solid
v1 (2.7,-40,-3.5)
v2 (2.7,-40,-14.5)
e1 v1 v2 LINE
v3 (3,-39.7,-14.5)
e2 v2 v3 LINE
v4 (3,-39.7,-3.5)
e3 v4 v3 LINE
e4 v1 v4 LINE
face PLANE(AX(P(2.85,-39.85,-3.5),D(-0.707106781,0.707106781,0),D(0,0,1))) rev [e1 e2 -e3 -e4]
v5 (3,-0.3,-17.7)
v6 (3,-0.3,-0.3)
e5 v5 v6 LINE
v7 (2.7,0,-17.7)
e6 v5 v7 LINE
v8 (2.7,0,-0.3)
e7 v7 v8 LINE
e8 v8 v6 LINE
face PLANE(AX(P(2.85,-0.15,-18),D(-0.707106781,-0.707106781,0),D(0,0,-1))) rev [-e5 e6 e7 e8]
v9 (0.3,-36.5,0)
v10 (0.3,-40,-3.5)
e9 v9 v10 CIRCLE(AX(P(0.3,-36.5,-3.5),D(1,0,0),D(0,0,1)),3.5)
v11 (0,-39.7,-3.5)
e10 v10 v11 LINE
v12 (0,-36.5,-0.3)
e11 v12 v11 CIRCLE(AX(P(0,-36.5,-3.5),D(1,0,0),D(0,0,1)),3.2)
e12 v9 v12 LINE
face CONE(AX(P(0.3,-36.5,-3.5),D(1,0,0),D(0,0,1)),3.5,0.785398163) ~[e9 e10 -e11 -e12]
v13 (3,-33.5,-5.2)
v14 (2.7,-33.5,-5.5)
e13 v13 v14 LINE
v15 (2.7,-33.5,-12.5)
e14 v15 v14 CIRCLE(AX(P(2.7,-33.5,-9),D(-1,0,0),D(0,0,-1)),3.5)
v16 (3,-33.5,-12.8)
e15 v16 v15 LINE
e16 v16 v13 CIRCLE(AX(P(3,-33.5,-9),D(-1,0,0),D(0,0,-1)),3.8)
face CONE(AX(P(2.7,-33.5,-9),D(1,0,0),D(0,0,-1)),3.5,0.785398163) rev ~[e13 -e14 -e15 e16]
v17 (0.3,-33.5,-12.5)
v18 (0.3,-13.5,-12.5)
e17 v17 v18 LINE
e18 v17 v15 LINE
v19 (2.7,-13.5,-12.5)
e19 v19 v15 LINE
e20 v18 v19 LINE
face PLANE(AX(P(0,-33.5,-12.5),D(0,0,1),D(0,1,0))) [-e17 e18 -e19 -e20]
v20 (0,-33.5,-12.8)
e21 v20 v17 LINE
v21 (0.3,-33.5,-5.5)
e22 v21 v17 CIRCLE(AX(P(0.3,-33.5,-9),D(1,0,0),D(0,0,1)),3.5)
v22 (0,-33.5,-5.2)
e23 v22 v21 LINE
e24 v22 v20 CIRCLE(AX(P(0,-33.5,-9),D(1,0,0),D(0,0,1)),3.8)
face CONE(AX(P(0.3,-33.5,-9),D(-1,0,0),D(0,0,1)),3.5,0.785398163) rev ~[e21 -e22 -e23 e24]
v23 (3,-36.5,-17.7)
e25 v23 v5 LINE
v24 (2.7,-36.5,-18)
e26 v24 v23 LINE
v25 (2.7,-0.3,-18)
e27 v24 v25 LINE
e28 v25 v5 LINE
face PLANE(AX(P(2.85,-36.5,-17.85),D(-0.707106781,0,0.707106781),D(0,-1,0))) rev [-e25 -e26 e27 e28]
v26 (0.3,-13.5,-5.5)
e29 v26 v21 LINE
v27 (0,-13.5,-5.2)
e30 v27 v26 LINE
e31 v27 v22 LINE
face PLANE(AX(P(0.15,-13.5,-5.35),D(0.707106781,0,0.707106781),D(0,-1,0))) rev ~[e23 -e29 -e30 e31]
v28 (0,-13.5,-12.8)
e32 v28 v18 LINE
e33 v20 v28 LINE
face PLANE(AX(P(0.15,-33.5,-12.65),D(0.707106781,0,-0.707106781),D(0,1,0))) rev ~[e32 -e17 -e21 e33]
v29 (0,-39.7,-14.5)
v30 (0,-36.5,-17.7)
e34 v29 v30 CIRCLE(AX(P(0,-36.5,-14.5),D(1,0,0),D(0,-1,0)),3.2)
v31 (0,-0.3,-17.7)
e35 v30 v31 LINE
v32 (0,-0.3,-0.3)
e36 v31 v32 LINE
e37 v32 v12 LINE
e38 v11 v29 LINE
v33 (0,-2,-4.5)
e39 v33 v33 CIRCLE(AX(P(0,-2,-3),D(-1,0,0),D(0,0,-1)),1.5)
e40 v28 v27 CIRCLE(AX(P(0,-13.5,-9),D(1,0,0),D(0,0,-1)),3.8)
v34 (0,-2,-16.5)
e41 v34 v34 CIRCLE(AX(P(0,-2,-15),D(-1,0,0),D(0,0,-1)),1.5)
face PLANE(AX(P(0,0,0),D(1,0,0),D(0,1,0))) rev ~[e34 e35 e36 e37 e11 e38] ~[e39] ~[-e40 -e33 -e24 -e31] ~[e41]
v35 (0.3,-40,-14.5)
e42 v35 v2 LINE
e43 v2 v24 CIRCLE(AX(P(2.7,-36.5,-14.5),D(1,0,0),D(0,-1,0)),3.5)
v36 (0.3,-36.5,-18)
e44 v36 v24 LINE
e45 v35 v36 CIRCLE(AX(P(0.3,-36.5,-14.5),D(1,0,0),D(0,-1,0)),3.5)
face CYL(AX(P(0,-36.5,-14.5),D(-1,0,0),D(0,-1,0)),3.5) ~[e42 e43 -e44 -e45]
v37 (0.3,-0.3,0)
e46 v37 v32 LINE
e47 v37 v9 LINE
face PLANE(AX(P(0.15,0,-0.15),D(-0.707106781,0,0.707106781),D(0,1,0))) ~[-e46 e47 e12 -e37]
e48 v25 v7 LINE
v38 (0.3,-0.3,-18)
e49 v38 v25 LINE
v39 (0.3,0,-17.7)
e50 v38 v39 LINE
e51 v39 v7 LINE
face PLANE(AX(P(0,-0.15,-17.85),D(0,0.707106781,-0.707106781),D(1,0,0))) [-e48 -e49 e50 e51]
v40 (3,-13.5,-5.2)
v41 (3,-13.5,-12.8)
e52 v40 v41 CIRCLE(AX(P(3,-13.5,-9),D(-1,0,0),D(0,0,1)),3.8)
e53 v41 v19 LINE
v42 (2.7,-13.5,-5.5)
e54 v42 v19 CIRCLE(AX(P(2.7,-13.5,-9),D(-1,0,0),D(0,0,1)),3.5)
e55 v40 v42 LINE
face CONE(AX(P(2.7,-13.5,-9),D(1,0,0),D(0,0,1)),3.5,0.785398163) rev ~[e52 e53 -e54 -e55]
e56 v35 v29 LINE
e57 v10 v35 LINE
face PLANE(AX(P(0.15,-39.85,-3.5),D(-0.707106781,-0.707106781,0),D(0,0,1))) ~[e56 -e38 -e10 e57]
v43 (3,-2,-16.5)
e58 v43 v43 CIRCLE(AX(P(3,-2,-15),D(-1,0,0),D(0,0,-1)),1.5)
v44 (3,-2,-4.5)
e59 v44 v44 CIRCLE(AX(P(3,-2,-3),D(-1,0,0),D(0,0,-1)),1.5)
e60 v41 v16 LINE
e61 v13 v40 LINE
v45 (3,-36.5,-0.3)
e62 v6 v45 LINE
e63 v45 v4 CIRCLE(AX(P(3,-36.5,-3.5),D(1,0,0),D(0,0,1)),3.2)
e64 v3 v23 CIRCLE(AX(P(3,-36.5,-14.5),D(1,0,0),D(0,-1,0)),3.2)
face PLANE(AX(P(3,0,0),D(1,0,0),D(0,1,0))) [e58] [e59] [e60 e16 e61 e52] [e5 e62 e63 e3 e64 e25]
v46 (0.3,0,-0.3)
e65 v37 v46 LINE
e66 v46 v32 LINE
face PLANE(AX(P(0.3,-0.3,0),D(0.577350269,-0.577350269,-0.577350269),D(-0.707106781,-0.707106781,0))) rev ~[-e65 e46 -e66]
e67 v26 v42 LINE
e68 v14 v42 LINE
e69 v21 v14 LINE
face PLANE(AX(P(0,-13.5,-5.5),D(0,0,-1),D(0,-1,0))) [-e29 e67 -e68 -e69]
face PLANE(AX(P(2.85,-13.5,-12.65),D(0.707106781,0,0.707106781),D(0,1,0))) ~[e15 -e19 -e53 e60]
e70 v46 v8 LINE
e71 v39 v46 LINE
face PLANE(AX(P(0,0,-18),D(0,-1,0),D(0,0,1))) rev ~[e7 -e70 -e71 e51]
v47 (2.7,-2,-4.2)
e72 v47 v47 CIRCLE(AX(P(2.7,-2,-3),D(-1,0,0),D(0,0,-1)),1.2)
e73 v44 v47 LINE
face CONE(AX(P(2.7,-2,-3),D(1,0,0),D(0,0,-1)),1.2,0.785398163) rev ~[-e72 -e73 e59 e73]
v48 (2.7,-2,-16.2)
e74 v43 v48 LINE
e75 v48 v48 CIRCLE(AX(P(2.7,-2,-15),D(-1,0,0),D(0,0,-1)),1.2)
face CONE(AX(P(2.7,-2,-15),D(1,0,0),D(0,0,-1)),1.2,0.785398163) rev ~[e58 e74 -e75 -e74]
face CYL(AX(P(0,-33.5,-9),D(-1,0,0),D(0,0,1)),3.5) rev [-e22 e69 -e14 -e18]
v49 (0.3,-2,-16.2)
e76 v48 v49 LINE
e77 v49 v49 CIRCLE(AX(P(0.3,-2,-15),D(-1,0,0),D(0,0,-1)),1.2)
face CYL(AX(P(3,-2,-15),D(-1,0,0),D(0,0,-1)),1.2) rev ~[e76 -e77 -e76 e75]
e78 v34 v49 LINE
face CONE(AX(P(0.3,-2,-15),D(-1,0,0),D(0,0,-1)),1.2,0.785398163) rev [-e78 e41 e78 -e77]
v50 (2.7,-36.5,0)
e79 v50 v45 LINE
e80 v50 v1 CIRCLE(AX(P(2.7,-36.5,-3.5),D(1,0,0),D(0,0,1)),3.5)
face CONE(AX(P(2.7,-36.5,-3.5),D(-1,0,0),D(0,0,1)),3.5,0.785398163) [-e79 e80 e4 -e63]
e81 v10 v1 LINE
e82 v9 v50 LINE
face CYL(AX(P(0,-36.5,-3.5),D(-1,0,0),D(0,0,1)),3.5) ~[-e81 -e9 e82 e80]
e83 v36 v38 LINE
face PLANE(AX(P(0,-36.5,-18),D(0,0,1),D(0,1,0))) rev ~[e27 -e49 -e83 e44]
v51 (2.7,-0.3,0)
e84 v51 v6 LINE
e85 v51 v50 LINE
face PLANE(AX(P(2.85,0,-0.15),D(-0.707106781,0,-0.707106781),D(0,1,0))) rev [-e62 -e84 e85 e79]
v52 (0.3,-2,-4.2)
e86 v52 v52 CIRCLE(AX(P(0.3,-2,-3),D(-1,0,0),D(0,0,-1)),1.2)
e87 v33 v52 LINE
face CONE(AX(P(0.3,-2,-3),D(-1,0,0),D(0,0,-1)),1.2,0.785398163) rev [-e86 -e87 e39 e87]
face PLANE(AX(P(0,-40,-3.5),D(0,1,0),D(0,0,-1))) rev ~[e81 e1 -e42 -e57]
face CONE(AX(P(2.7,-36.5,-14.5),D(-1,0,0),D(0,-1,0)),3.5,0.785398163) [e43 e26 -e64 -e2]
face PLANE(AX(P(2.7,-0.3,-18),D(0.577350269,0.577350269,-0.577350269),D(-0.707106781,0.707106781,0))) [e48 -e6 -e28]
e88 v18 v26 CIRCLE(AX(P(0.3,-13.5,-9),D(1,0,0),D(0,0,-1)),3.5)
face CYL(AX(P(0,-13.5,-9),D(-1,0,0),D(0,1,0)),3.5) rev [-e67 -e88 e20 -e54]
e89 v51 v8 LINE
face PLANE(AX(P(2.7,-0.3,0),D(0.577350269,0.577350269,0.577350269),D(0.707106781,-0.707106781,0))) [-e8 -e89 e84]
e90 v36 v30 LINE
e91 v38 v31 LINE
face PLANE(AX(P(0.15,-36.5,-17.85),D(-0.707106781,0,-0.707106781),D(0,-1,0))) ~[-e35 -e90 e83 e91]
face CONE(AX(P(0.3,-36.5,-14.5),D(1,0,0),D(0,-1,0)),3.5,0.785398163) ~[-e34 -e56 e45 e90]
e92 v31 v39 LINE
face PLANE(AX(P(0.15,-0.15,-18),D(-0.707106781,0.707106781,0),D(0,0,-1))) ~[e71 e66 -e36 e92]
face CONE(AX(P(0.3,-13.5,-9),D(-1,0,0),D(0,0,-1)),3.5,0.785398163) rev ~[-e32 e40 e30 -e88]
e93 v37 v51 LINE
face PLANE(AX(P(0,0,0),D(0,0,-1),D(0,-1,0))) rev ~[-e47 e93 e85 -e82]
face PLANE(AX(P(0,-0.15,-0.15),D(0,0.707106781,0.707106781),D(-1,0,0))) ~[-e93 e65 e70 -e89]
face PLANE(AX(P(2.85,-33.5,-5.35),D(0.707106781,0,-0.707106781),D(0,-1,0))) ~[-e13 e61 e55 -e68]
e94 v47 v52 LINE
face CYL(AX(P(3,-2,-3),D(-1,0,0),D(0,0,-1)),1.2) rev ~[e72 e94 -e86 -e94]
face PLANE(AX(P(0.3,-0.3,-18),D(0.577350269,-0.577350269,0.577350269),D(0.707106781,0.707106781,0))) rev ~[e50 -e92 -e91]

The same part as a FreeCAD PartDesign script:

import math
import FreeCAD as App
import Part
import Sketcher
Q = App.Units.Quantity

doc = App.newDocument("Part")
params = doc.addObject("Spreadsheet::Sheet", "Params")
for row, (alias, value) in enumerate([
    ("sketch1_radius", "3.5 mm"),
    ("sketch1_height", "18 mm"),
    ("sketch1_width", "20 mm"),
    ("pad1_length", "3 mm"),
    ("sketch2_diameter", "2.4 mm"),
    ("hole_diameter", "2.4 mm"),
    ("hole_depth", "8.8 mm"),
    ("chamfer_size", "0.3 mm"),
], start=1):
    params.set(f"A{row}", alias)
    params.set(f"B{row}", "=" + value)
    params.setAlias(f"B{row}", alias)

body = doc.addObject("PartDesign::Body", "Body")

# Sketch on YZ plane
sketch1 = body.newObject("Sketcher::SketchObject", "Sketch")
sketch1.AttachmentSupport = (doc.getObject("YZ_Plane"), [""])
sketch1.MapMode = "FlatFace"
sketch1.addGeometry(Part.LineSegment(App.Vector(0, -18, 0), App.Vector(0, 0, 0)), False)
sketch1.addGeometry(Part.LineSegment(App.Vector(0, 0, 0), App.Vector(-36.5, 0, 0)), False)
sketch1.addGeometry(Part.ArcOfCircle(Part.Circle(App.Vector(-36.5, -3.5, 0), App.Vector(0, 0, 1), 3.5), math.radians(90), math.radians(180)), False)
sketch1.addGeometry(Part.LineSegment(App.Vector(-40, -3.5, 0), App.Vector(-40, -14.5, 0)), False)
sketch1.addGeometry(Part.ArcOfCircle(Part.Circle(App.Vector(-36.5, -14.5, 0), App.Vector(0, 0, 1), 3.5), math.radians(180), math.radians(270)), False)
sketch1.addGeometry(Part.LineSegment(App.Vector(-36.5, -18, 0), App.Vector(0, -18, 0)), False)
sketch1.addGeometry(Part.LineSegment(App.Vector(-33.5, -5.5, 0), App.Vector(-13.5, -5.5, 0)), False)
sketch1.addGeometry(Part.ArcOfCircle(Part.Circle(App.Vector(-13.5, -9, 0), App.Vector(0, 0, 1), 3.5), math.radians(-90), math.radians(90)), False)
sketch1.addGeometry(Part.LineSegment(App.Vector(-13.5, -12.5, 0), App.Vector(-33.5, -12.5, 0)), False)
sketch1.addGeometry(Part.ArcOfCircle(Part.Circle(App.Vector(-33.5, -9, 0), App.Vector(0, 0, 1), 3.5), math.radians(90), math.radians(270)), False)
sketch1.addConstraint(Sketcher.Constraint("Coincident", 0, 2, 1, 1))
sketch1.addConstraint(Sketcher.Constraint("Tangent", 1, 2, 2, 1))
sketch1.addConstraint(Sketcher.Constraint("Tangent", 2, 2, 3, 1))
sketch1.addConstraint(Sketcher.Constraint("Tangent", 3, 2, 4, 1))
sketch1.addConstraint(Sketcher.Constraint("Tangent", 4, 2, 5, 1))
sketch1.addConstraint(Sketcher.Constraint("Coincident", 5, 2, 0, 1))
sketch1.addConstraint(Sketcher.Constraint("Tangent", 6, 2, 7, 2))
sketch1.addConstraint(Sketcher.Constraint("Tangent", 7, 1, 8, 1))
sketch1.addConstraint(Sketcher.Constraint("Tangent", 8, 2, 9, 2))
sketch1.addConstraint(Sketcher.Constraint("Tangent", 9, 1, 6, 1))
sketch1.addConstraint(Sketcher.Constraint("Vertical", 0))
sketch1.addConstraint(Sketcher.Constraint("Horizontal", 1))
sketch1.addConstraint(Sketcher.Constraint("Vertical", 3))
sketch1.addConstraint(Sketcher.Constraint("Horizontal", 5))
sketch1.addConstraint(Sketcher.Constraint("Horizontal", 6))
sketch1.addConstraint(Sketcher.Constraint("Horizontal", 8))
sketch1.addConstraint(Sketcher.Constraint("Coincident", 0, 2, -1, 1))
sketch1.addConstraint(Sketcher.Constraint("Equal", 2, 4))
sketch1.addConstraint(Sketcher.Constraint("Equal", 4, 7))
sketch1.addConstraint(Sketcher.Constraint("Radius", 2, Q("3.5 mm")))
sketch1.addConstraint(Sketcher.Constraint("DistanceY", 0, 1, 0, 2, Q("18 mm")))
sketch1.addConstraint(Sketcher.Constraint("DistanceX", 2, 2, -1, 1, Q("40 mm")))
sketch1.addConstraint(Sketcher.Constraint("DistanceY", 6, 2, -1, 1, Q("5.5 mm")))
sketch1.addConstraint(Sketcher.Constraint("DistanceX", 6, 1, 6, 2, Q("20 mm")))
sketch1.addConstraint(Sketcher.Constraint("DistanceX", 2, 3, 7, 3, Q("23 mm")))
sketch1.setExpression("Constraints[19]", "Params.sketch1_radius")
sketch1.setExpression("Constraints[20]", "Params.sketch1_height")
sketch1.setExpression("Constraints[23]", "Params.sketch1_width")
pad1 = body.newObject("PartDesign::Pad", "Pad")
pad1.Profile = sketch1
pad1.setExpression("Length", "Params.pad1_length")

# Sketch on YZ plane
sketch2 = body.newObject("Sketcher::SketchObject", "Sketch001")
sketch2.AttachmentSupport = (doc.getObject("YZ_Plane"), [""])
sketch2.MapMode = "FlatFace"
sketch2.AttachmentOffset = App.Placement(App.Vector(0, 0, 3), App.Rotation())
sketch2.addGeometry(Part.Circle(App.Vector(-2, -3, 0), App.Vector(0, 0, 1), 1.2), False)
sketch2.addGeometry(Part.Circle(App.Vector(-2, -15, 0), App.Vector(0, 0, 1), 1.2), False)
sketch2.addConstraint(Sketcher.Constraint("Equal", 0, 1))
sketch2.addConstraint(Sketcher.Constraint("Vertical", 0, 3, 1, 3))
sketch2.addConstraint(Sketcher.Constraint("Diameter", 0, Q("2.4 mm")))
sketch2.addConstraint(Sketcher.Constraint("DistanceX", 0, 3, -1, 1, Q("2 mm")))
sketch2.addConstraint(Sketcher.Constraint("DistanceY", 0, 3, -1, 1, Q("3 mm")))
sketch2.addConstraint(Sketcher.Constraint("DistanceY", 1, 3, -1, 1, Q("15 mm")))
sketch2.setExpression("Constraints[2]", "Params.sketch2_diameter")
doc.recompute()
hole = body.newObject("PartDesign::Hole", "Hole")
hole.Profile = sketch2
hole.ThreadType = "None"
hole.setExpression("Diameter", "Params.hole_diameter")
hole.DepthType = "Dimension"
hole.setExpression("Depth", "Params.hole_depth")
hole.DrillPoint = "Angled"
hole.DrillPointAngle = 118
doc.recompute()

chamfer = body.newObject("PartDesign::Chamfer", "Chamfer")
chamfer.Base = (hole, ["Edge1"])
chamfer.UseAllEdges = True
chamfer.setExpression("Size", "Params.chamfer_size")

doc.recompute()
